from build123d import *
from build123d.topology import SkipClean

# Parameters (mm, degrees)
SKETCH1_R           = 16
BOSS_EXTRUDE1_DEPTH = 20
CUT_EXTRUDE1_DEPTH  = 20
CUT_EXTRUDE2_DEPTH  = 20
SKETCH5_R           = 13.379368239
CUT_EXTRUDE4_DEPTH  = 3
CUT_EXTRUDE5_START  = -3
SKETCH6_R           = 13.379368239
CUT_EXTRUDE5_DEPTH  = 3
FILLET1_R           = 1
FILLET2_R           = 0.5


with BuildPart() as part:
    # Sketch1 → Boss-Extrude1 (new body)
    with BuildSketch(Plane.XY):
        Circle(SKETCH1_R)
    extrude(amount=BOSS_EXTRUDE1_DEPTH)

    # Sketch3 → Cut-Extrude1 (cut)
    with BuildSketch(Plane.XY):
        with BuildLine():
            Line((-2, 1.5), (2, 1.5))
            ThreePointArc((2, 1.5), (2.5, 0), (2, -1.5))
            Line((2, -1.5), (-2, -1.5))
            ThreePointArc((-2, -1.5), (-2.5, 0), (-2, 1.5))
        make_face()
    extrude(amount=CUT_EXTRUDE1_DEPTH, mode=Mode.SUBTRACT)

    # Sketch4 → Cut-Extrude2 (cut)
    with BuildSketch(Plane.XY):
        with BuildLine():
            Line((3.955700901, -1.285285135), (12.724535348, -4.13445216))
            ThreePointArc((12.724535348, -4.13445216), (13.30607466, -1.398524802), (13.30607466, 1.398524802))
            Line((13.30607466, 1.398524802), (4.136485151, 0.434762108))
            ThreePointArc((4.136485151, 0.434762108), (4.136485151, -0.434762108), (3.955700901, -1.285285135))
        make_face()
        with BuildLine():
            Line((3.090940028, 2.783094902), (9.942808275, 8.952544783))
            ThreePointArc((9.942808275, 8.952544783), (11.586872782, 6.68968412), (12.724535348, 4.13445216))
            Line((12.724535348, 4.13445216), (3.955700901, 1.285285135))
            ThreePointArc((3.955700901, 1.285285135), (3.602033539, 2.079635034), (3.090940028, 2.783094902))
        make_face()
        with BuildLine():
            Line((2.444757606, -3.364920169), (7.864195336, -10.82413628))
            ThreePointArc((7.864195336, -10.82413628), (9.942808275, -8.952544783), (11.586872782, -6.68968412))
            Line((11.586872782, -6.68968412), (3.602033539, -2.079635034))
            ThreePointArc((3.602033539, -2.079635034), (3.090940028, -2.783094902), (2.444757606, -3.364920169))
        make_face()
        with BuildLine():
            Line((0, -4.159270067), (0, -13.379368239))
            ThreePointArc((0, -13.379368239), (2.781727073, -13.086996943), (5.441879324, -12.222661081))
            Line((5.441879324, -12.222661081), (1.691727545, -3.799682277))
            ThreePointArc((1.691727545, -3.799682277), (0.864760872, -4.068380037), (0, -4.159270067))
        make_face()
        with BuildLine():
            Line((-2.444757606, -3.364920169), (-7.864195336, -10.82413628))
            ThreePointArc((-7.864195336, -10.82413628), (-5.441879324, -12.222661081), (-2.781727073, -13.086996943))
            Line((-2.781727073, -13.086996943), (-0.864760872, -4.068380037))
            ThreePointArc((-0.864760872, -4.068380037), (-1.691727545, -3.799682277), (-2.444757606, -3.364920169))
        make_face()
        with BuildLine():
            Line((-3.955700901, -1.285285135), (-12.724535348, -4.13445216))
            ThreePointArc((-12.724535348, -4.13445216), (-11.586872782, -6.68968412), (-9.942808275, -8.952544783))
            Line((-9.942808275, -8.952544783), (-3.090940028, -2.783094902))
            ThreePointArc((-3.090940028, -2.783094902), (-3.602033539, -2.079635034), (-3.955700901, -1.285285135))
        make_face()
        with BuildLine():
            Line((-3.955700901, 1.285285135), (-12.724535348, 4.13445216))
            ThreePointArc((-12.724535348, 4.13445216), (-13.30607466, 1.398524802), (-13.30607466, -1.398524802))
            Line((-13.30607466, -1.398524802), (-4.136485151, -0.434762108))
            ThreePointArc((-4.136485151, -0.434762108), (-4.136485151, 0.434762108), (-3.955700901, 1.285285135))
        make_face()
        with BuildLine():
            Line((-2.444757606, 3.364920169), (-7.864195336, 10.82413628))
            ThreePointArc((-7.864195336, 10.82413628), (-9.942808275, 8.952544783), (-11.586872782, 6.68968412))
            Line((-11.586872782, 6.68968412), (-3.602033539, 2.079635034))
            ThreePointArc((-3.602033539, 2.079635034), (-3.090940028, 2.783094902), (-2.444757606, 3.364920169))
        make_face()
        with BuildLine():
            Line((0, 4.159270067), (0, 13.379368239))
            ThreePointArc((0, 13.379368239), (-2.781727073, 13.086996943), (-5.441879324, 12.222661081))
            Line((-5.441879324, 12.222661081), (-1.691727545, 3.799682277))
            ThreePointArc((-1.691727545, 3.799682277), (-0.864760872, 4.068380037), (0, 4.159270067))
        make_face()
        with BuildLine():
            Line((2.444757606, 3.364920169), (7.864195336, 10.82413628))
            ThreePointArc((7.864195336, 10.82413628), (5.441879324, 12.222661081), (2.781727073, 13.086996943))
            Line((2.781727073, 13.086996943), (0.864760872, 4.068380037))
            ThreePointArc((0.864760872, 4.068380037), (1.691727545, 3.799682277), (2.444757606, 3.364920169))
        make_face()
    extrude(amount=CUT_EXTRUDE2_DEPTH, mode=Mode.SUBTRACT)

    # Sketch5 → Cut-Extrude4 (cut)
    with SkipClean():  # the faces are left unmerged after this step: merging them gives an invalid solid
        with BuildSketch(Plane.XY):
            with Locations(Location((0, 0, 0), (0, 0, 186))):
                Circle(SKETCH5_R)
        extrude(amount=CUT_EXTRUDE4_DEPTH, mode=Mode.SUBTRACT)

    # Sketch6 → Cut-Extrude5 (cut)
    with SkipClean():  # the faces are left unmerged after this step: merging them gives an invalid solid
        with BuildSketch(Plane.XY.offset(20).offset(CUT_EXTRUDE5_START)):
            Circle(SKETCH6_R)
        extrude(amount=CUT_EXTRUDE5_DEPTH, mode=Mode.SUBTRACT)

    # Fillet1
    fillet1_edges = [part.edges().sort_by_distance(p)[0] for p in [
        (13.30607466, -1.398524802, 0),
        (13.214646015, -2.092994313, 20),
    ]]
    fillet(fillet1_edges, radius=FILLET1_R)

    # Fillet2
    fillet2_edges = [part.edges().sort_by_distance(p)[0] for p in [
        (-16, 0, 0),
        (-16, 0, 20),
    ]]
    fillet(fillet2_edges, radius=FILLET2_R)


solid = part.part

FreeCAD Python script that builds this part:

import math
import FreeCAD as App
import Part
import Sketcher
from FreeCAD import Vector
Q = App.Units.Quantity


def edges_at(feature, points):
    """Names of the edges that pass closest to the given points."""
    edges = feature.Shape.Edges
    near = lambda p: min(range(len(edges)), key=lambda i: edges[i].distToShape(Part.Vertex(*p))[0])
    return sorted({f"Edge{near(p) + 1}" for p in points})

doc = App.newDocument("Part")
body = doc.addObject("PartDesign::Body", "Body")

sketch1 = body.newObject("Sketcher::SketchObject", "Sketch")
sketch1.AttachmentSupport = (doc.getObject("XY_Plane"), [""])
sketch1.MapMode = "FlatFace"
sketch1.addGeometry(Part.Circle(Vector(0, 0, 0), Vector(0, 0, 1), 16), False)
sketch1.addConstraint([
    Sketcher.Constraint("Coincident", 0, 3, -1, 1),
    Sketcher.Constraint("Diameter", 0, Q("32 mm")),
])
pad1 = body.newObject("PartDesign::Pad", "Pad")
pad1.Profile = sketch1
pad1.Length = 20

sketch2 = body.newObject("Sketcher::SketchObject", "Sketch001")
sketch2.AttachmentSupport = (doc.getObject("XY_Plane"), [""])
sketch2.MapMode = "FlatFace"
sketch2.addGeometry([
    Part.LineSegment(Vector(2, 1.5, 0), Vector(-2, 1.5, 0)),
    Part.ArcOfCircle(Part.Circle(Vector(0, 0, 0), Vector(0, 0, 1), 2.5), math.radians(143.130102), math.radians(216.869898)),
    Part.LineSegment(Vector(-2, -1.5, 0), Vector(2, -1.5, 0)),
    Part.ArcOfCircle(Part.Circle(Vector(0, 0, 0), Vector(0, 0, 1), 2.5), math.radians(-36.869898), math.radians(36.869898)),
], False)
sketch2.addConstraint([
    Sketcher.Constraint("Coincident", 0, 2, 1, 1),
    Sketcher.Constraint("Coincident", 1, 2, 2, 1),
    Sketcher.Constraint("Coincident", 2, 2, 3, 1),
    Sketcher.Constraint("Coincident", 3, 2, 0, 1),
    Sketcher.Constraint("Horizontal", 0),
    Sketcher.Constraint("Horizontal", 2),
    Sketcher.Constraint("Coincident", 1, 3, -1, 1),
    Sketcher.Constraint("Coincident", 3, 3, -1, 1),
    Sketcher.Constraint("Equal", 1, 3),
    Sketcher.Constraint("Vertical", 0, 2, 1, 2),
    Sketcher.Constraint("Radius", 1, Q("2.5 mm")),
    Sketcher.Constraint("DistanceX", 0, 2, 0, 1, Q("4 mm")),
])
pocket1 = body.newObject("PartDesign::Pocket", "Pocket")
pocket1.Profile = sketch2
pocket1.Length = 20
pocket1.Reversed = True

sketch3 = body.newObject("Sketcher::SketchObject", "Sketch002")
sketch3.AttachmentSupport = (doc.getObject("XY_Plane"), [""])
sketch3.MapMode = "FlatFace"
sketch3.addGeometry([
    Part.LineSegment(Vector(3.955701, -1.285285, 0), Vector(12.724535, -4.134452, 0)),
    Part.ArcOfCircle(Part.Circle(Vector(0, 0, 0), Vector(0, 0, 1), 13.379368), math.radians(-18), math.radians(6)),
    Part.LineSegment(Vector(13.306075, 1.398525, 0), Vector(4.136485, 0.434762, 0)),
    Part.ArcOfCircle(Part.Circle(Vector(0, 0, 0), Vector(0, 0, 1), 4.15927), math.radians(-18), math.radians(6)),
    Part.LineSegment(Vector(9.942808, 8.952545, 0), Vector(3.09094, 2.783095, 0)),
    Part.ArcOfCircle(Part.Circle(Vector(0, 0, 0), Vector(0, 0, 1), 4.15927), math.radians(18), math.radians(42)),
    Part.LineSegment(Vector(3.955701, 1.285285, 0), Vector(12.724535, 4.134452, 0)),
    Part.ArcOfCircle(Part.Circle(Vector(0, 0, 0), Vector(0, 0, 1), 13.379368), math.radians(18), math.radians(42)),
    Part.LineSegment(Vector(2.444758, -3.36492, 0), Vector(7.864195, -10.824136, 0)),
    Part.ArcOfCircle(Part.Circle(Vector(0, 0, 0), Vector(0, 0, 1), 13.379368), math.radians(-54), math.radians(-30)),
    Part.LineSegment(Vector(11.586873, -6.689684, 0), Vector(3.602034, -2.079635, 0)),
    Part.ArcOfCircle(Part.Circle(Vector(0, 0, 0), Vector(0, 0, 1), 4.15927), math.radians(-54), math.radians(-30)),
    Part.LineSegment(Vector(0, -4.15927, 0), Vector(0, -13.379368, 0)),
    Part.ArcOfCircle(Part.Circle(Vector(0, 0, 0), Vector(0, 0, 1), 13.379368), math.radians(-90), math.radians(-66)),
    Part.LineSegment(Vector(5.441879, -12.222661, 0), Vector(1.691728, -3.799682, 0)),
    Part.ArcOfCircle(Part.Circle(Vector(0, 0, 0), Vector(0, 0, 1), 4.15927), math.radians(-90), math.radians(-66)),
    Part.LineSegment(Vector(-2.444758, -3.36492, 0), Vector(-7.864195, -10.824136, 0)),
    Part.ArcOfCircle(Part.Circle(Vector(0, 0, 0), Vector(0, 0, 1), 13.379368), math.radians(-126), math.radians(-102)),
    Part.LineSegment(Vector(-2.781727, -13.086997, 0), Vector(-0.864761, -4.06838, 0)),
    Part.ArcOfCircle(Part.Circle(Vector(0, 0, 0), Vector(0, 0, 1), 4.15927), math.radians(-126), math.radians(-102)),
    Part.LineSegment(Vector(-3.955701, -1.285285, 0), Vector(-12.724535, -4.134452, 0)),
    Part.ArcOfCircle(Part.Circle(Vector(0, 0, 0), Vector(0, 0, 1), 13.379368), math.radians(-162), math.radians(-138)),
    Part.LineSegment(Vector(-9.942808, -8.952545, 0), Vector(-3.09094, -2.783095, 0)),
    Part.ArcOfCircle(Part.Circle(Vector(0, 0, 0), Vector(0, 0, 1), 4.15927), math.radians(-162), math.radians(-138)),
    Part.LineSegment(Vector(-3.955701, 1.285285, 0), Vector(-12.724535, 4.134452, 0)),
    Part.ArcOfCircle(Part.Circle(Vector(0, 0, 0), Vector(0, 0, 1), 13.379368), math.radians(162), math.radians(186)),
    Part.LineSegment(Vector(-13.306075, -1.398525, 0), Vector(-4.136485, -0.434762, 0)),
    Part.ArcOfCircle(Part.Circle(Vector(0, 0, 0), Vector(0, 0, 1), 4.15927), math.radians(162), math.radians(186)),
    Part.LineSegment(Vector(-2.444758, 3.36492, 0), Vector(-7.864195, 10.824136, 0)),
    Part.ArcOfCircle(Part.Circle(Vector(0, 0, 0), Vector(0, 0, 1), 13.379368), math.radians(126), math.radians(150)),
    Part.LineSegment(Vector(-11.586873, 6.689684, 0), Vector(-3.602034, 2.079635, 0)),
    Part.ArcOfCircle(Part.Circle(Vector(0, 0, 0), Vector(0, 0, 1), 4.15927), math.radians(126), math.radians(150)),
    Part.LineSegment(Vector(0, 4.15927, 0), Vector(0, 13.379368, 0)),
    Part.ArcOfCircle(Part.Circle(Vector(0, 0, 0), Vector(0, 0, 1), 13.379368), math.radians(90), math.radians(114)),
    Part.LineSegment(Vector(-5.441879, 12.222661, 0), Vector(-1.691728, 3.799682, 0)),
    Part.ArcOfCircle(Part.Circle(Vector(0, 0, 0), Vector(0, 0, 1), 4.15927), math.radians(90), math.radians(114)),
    Part.LineSegment(Vector(2.444758, 3.36492, 0), Vector(7.864195, 10.824136, 0)),
    Part.ArcOfCircle(Part.Circle(Vector(0, 0, 0), Vector(0, 0, 1), 13.379368), math.radians(54), math.radians(78)),
    Part.LineSegment(Vector(2.781727, 13.086997, 0), Vector(0.864761, 4.06838, 0)),
    Part.ArcOfCircle(Part.Circle(Vector(0, 0, 0), Vector(0, 0, 1), 4.15927), math.radians(54), math.radians(78)),
], False)
sketch3.addConstraint([
    Sketcher.Constraint("Coincident", 0, 2, 1, 1),
    Sketcher.Constraint("Coincident", 1, 2, 2, 1),
    Sketcher.Constraint("Coincident", 2, 2, 3, 2),
    Sketcher.Constraint("Coincident", 3, 1, 0, 1),
    Sketcher.Constraint("Coincident", 4, 2, 5, 2),
    Sketcher.Constraint("Coincident", 5, 1, 6, 1),
    Sketcher.Constraint("Coincident", 6, 2, 7, 1),
    Sketcher.Constraint("Coincident", 7, 2, 4, 1),
    Sketcher.Constraint("Coincident", 8, 2, 9, 1),
    Sketcher.Constraint("Coincident", 9, 2, 10, 1),
    Sketcher.Constraint("Coincident", 10, 2, 11, 2),
    Sketcher.Constraint("Coincident", 11, 1, 8, 1),
    Sketcher.Constraint("Coincident", 12, 2, 13, 1),
    Sketcher.Constraint("Coincident", 13, 2, 14, 1),
    Sketcher.Constraint("Coincident", 14, 2, 15, 2),
    Sketcher.Constraint("Coincident", 15, 1, 12, 1),
    Sketcher.Constraint("Coincident", 16, 2, 17, 1),
    Sketcher.Constraint("Coincident", 17, 2, 18, 1),
    Sketcher.Constraint("Coincident", 18, 2, 19, 2),
    Sketcher.Constraint("Coincident", 19, 1, 16, 1),
    Sketcher.Constraint("Coincident", 20, 2, 21, 1),
    Sketcher.Constraint("Coincident", 21, 2, 22, 1),
    Sketcher.Constraint("Coincident", 22, 2, 23, 2),
    Sketcher.Constraint("Coincident", 23, 1, 20, 1),
    Sketcher.Constraint("Coincident", 24, 2, 25, 1),
    Sketcher.Constraint("Coincident", 25, 2, 26, 1),
    Sketcher.Constraint("Coincident", 26, 2, 27, 2),
    Sketcher.Constraint("Coincident", 27, 1, 24, 1),
    Sketcher.Constraint("Coincident", 28, 2, 29, 1),
    Sketcher.Constraint("Coincident", 29, 2, 30, 1),
    Sketcher.Constraint("Coincident", 30, 2, 31, 2),
    Sketcher.Constraint("Coincident", 31, 1, 28, 1),
    Sketcher.Constraint("Coincident", 32, 2, 33, 1),
    Sketcher.Constraint("Coincident", 33, 2, 34, 1),
    Sketcher.Constraint("Coincident", 34, 2, 35, 2),
    Sketcher.Constraint("Coincident", 35, 1, 32, 1),
    Sketcher.Constraint("Coincident", 36, 2, 37, 1),
    Sketcher.Constraint("Coincident", 37, 2, 38, 1),
    Sketcher.Constraint("Coincident", 38, 2, 39, 2),
    Sketcher.Constraint("Coincident", 39, 1, 36, 1),
    Sketcher.Constraint("Vertical", 12),
    Sketcher.Constraint("Vertical", 32),
    Sketcher.Constraint("Coincident", 1, 3, -1, 1),
    Sketcher.Constraint("Coincident", 3, 3, -1, 1),
    Sketcher.Constraint("Coincident", 5, 3, -1, 1),
    Sketcher.Constraint("Coincident", 7, 3, -1, 1),
    Sketcher.Constraint("Coincident", 9, 3, -1, 1),
    Sketcher.Constraint("Coincident", 11, 3, -1, 1),
    Sketcher.Constraint("Coincident", 13, 3, -1, 1),
    Sketcher.Constraint("Coincident", 15, 3, -1, 1),
    Sketcher.Constraint("Coincident", 17, 3, -1, 1),
    Sketcher.Constraint("Coincident", 19, 3, -1, 1),
    Sketcher.Constraint("Coincident", 21, 3, -1, 1),
    Sketcher.Constraint("Coincident", 23, 3, -1, 1),
    Sketcher.Constraint("Coincident", 25, 3, -1, 1),
    Sketcher.Constraint("Coincident", 27, 3, -1, 1),
    Sketcher.Constraint("Coincident", 29, 3, -1, 1),
    Sketcher.Constraint("Coincident", 31, 3, -1, 1),
    Sketcher.Constraint("Coincident", 33, 3, -1, 1),
    Sketcher.Constraint("Coincident", 35, 3, -1, 1),
    Sketcher.Constraint("Coincident", 37, 3, -1, 1),
    Sketcher.Constraint("Coincident", 39, 3, -1, 1),
    Sketcher.Constraint("Equal", 3, 5),
    Sketcher.Constraint("Equal", 1, 7),
    Sketcher.Constraint("Equal", 7, 9),
    Sketcher.Constraint("Equal", 5, 11),
    Sketcher.Constraint("Equal", 9, 13),
    Sketcher.Constraint("Equal", 11, 15),
    Sketcher.Constraint("Equal", 13, 17),
    Sketcher.Constraint("Equal", 15, 19),
    Sketcher.Constraint("Equal", 17, 21),
    Sketcher.Constraint("Equal", 19, 23),
    Sketcher.Constraint("Equal", 21, 25),
    Sketcher.Constraint("Equal", 23, 27),
    Sketcher.Constraint("Equal", 25, 29),
    Sketcher.Constraint("Equal", 27, 31),
    Sketcher.Constraint("Equal", 29, 33),
    Sketcher.Constraint("Equal", 31, 35),
    Sketcher.Constraint("Equal", 33, 37),
    Sketcher.Constraint("Equal", 35, 39),
    Sketcher.Constraint("PointOnObject", 12, 2, -2),
    Sketcher.Constraint("PointOnObject", 32, 2, -2),
    Sketcher.Constraint("Parallel", 6, 20),
    Sketcher.Constraint("Parallel", 4, 22),
    Sketcher.Constraint("Parallel", 0, 24),
    Sketcher.Constraint("Parallel", 2, 26),
    Sketcher.Constraint("Parallel", 8, 28),
    Sketcher.Constraint("Parallel", 10, 30),
    Sketcher.Constraint("Parallel", 14, 34),
    Sketcher.Constraint("Parallel", 16, 36),
    Sketcher.Constraint("Parallel", 18, 38),
    Sketcher.Constraint("Horizontal", 8, 2, 16, 2),
    Sketcher.Constraint("Horizontal", 11, 1, 19, 1),
    Sketcher.Constraint("Horizontal", 0, 2, 20, 2),
    Sketcher.Constraint("Horizontal", 3, 1, 23, 1),
    Sketcher.Constraint("Horizontal", 6, 2, 24, 2),
    Sketcher.Constraint("Horizontal", 28, 2, 36, 2),
    Sketcher.Constraint("Vertical", 3, 1, 5, 1),
    Sketcher.Constraint("Vertical", 16, 2, 28, 2),
    Sketcher.Constraint("Angle", 0, Q("-18 deg")),
    Sketcher.Constraint("Angle", 2, Q("-174 deg")),
    Sketcher.Constraint("Angle", 4, Q("-138 deg")),
    Sketcher.Constraint("Angle", 8, Q("-54 deg")),
    Sketcher.Constraint("Angle", 10, Q("150 deg")),
    Sketcher.Constraint("Angle", 14, Q("114 deg")),
    Sketcher.Constraint("Angle", 18, Q("78 deg")),
    Sketcher.Constraint("Radius", 1, Q("13.379368 mm")),
    Sketcher.Constraint("Radius", 3, Q("4.15927 mm")),
    Sketcher.Constraint("DistanceX", -1, 1, 3, 1, Q("3.955701 mm")),
    Sketcher.Constraint("DistanceY", 8, 2, 2, 2, Q("11.258898 mm")),
    Sketcher.Constraint("DistanceX", 9, 2, 1, 2, Q("1.719202 mm")),
    Sketcher.Constraint("DistanceY", 9, 2, 3, 1, Q("5.404399 mm")),
    Sketcher.Constraint("DistanceY", 26, 2, 28, 2, Q("11.258898 mm")),
    Sketcher.Constraint("DistanceX", 25, 2, 29, 2, Q("1.719202 mm")),
    Sketcher.Constraint("DistanceX", -1, 1, 4, 2, Q("3.09094 mm")),
    Sketcher.Constraint("DistanceX", -1, 1, 13, 2, Q("5.441879 mm")),
    Sketcher.Constraint("DistanceX", 18, 2, -1, 1, Q("0.864761 mm")),
    Sketcher.Constraint("DistanceX", 21, 2, -1, 1, Q("9.942808 mm")),
    Sketcher.Constraint("DistanceX", 33, 2, -1, 1, Q("5.441879 mm")),
    Sketcher.Constraint("DistanceX", -1, 1, 38, 2, Q("0.864761 mm")),
])
pocket2 = body.newObject("PartDesign::Pocket", "Pocket001")
pocket2.Profile = sketch3
pocket2.Length = 20
pocket2.Reversed = True

sketch4 = body.newObject("Sketcher::SketchObject", "Sketch003")
sketch4.AttachmentSupport = (doc.getObject("XY_Plane"), [""])
sketch4.MapMode = "FlatFace"
sketch4.addGeometry(Part.Circle(Vector(0, 0, 0), Vector(0, 0, 1), 13.379368), False)
sketch4.addConstraint([
    Sketcher.Constraint("Coincident", 0, 3, -1, 1),
    Sketcher.Constraint("Diameter", 0, Q("26.758736 mm")),
])
pocket3 = body.newObject("PartDesign::Pocket", "Pocket002")
pocket3.Profile = sketch4
pocket3.Length = 3
pocket3.Reversed = True

sketch5 = body.newObject("Sketcher::SketchObject", "Sketch004")
sketch5.AttachmentSupport = (doc.getObject("XY_Plane"), [""])
sketch5.MapMode = "FlatFace"
sketch5.AttachmentOffset = App.Placement(Vector(0, 0, 17), App.Rotation())
sketch5.addGeometry(Part.Circle(Vector(0, 0, 0), Vector(0, 0, 1), 13.379368), False)
sketch5.addConstraint([
    Sketcher.Constraint("Coincident", 0, 3, -1, 1),
    Sketcher.Constraint("Diameter", 0, Q("26.758736 mm")),
])
pocket4 = body.newObject("PartDesign::Pocket", "Pocket003")
pocket4.Profile = sketch5
pocket4.Length = 3
pocket4.Reversed = True
doc.recompute()

fillet = body.newObject("PartDesign::Fillet", "Fillet")
fillet.Base = (pocket4, edges_at(pocket4, [(13.306, -1.399, 0), (13.215, -2.093, 20)]))
fillet.Radius = 1
doc.recompute()

fillet2 = body.newObject("PartDesign::Fillet", "Fillet001")
fillet2.Base = (fillet, edges_at(fillet, [(-16, 0, 0), (-16, 0, 20)]))
fillet2.Radius = 0.5

doc.recompute()
